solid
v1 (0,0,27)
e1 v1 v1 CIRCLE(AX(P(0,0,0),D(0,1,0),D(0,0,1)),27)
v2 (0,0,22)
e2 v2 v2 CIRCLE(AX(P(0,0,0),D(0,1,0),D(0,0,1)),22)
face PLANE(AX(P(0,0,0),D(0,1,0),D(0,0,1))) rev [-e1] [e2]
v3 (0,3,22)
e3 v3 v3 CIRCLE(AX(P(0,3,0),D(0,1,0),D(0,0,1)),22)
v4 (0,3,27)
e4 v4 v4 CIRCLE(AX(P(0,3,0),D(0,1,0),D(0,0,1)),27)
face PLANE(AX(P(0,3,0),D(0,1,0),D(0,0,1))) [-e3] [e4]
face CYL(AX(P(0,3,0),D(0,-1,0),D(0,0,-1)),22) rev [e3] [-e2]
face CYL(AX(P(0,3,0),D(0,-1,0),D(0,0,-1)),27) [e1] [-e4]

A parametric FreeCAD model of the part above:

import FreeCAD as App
import Part
import Sketcher
from FreeCAD import Vector
Q = App.Units.Quantity

doc = App.newDocument("Part")
params = doc.addObject("Spreadsheet::Sheet", "Params")
for row, (alias, value) in enumerate([
    ("sketch1_diameter", "54 mm"),
    ("sketch1_diameter2", "44 mm"),
    ("pad1_length", "3 mm"),
], start=1):
    params.set(f"A{row}", alias)
    params.set(f"B{row}", "=" + value)
    params.setAlias(f"B{row}", alias)

body = doc.addObject("PartDesign::Body", "Body")

sketch1 = body.newObject("Sketcher::SketchObject", "Sketch")
sketch1.AttachmentSupport = (doc.getObject("XZ_Plane"), [""])
sketch1.MapMode = "FlatFace"
sketch1.addGeometry(Part.Circle(Vector(0, 0, 0), Vector(0, 0, 1), 27), False)
sketch1.addGeometry(Part.Circle(Vector(0, 0, 0), Vector(0, 0, 1), 22), False)
sketch1.addConstraint(Sketcher.Constraint("Coincident", 0, 3, -1, 1))
sketch1.addConstraint(Sketcher.Constraint("Coincident", 1, 3, -1, 1))
sketch1.addConstraint(Sketcher.Constraint("Diameter", 0, Q("54 mm")))
sketch1.addConstraint(Sketcher.Constraint("Diameter", 1, Q("44 mm")))
sketch1.setExpression("Constraints[2]", "Params.sketch1_diameter")
sketch1.setExpression("Constraints[3]", "Params.sketch1_diameter2")
pad1 = body.newObject("PartDesign::Pad", "Pad")
pad1.Profile = sketch1
pad1.setExpression("Length", "Params.pad1_length")
pad1.Reversed = True

doc.recompute()
